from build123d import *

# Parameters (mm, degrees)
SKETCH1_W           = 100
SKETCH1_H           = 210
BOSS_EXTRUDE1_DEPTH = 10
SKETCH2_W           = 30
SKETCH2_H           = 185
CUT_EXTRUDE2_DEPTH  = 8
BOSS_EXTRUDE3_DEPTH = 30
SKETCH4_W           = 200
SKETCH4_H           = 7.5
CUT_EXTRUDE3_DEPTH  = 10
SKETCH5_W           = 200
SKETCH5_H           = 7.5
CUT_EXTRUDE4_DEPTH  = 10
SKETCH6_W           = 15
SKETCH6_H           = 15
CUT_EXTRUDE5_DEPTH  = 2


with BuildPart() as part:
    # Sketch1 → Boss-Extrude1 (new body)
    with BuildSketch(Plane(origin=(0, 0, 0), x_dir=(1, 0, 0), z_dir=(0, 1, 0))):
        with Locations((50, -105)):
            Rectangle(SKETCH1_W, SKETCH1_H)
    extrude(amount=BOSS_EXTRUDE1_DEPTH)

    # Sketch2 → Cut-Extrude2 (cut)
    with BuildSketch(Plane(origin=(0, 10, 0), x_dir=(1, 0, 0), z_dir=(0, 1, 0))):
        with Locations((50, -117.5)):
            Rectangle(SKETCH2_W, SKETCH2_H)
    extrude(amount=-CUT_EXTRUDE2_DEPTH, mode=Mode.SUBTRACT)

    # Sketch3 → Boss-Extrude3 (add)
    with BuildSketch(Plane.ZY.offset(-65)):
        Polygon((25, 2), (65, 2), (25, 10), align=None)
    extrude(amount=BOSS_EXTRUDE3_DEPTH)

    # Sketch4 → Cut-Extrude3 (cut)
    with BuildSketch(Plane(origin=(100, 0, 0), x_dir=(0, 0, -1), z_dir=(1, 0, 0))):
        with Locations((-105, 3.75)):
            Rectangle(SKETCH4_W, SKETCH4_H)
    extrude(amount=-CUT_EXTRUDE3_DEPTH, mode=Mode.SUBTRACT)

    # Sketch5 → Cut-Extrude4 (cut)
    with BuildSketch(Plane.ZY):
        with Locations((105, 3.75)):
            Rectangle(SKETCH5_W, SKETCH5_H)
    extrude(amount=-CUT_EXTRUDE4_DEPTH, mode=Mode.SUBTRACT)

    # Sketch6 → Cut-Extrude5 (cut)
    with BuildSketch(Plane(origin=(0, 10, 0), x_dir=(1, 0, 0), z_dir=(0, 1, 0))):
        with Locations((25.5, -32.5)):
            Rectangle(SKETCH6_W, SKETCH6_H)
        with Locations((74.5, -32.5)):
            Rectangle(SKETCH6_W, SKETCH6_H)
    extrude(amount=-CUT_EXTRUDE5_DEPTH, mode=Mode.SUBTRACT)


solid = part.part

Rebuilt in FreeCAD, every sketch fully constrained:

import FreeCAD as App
import Part
import Sketcher

doc = App.newDocument("Part")
params = doc.addObject("Spreadsheet::Sheet", "Params")
for row, (alias, value) in enumerate([
    ("sketch1_width", "100 mm"),
    ("sketch1_height", "210 mm"),
    ("pad1_length", "10 mm"),
    ("sketch2_width", "30 mm"),
    ("sketch2_height", "185 mm"),
    ("pocket1_length", "8 mm"),
    ("sketch3_width", "8 mm"),
    ("sketch3_height", "40 mm"),
    ("pad2_length", "30 mm"),
    ("sketch4_height", "200 mm"),
    ("sketch4_width", "7.5 mm"),
    ("pocket2_length", "10 mm"),
    ("sketch5_height", "200 mm"),
    ("sketch5_width", "7.5 mm"),
    ("pocket3_length", "10 mm"),
    ("sketch6_width", "15 mm"),
    ("pocket4_length", "2 mm"),
], start=1):
    params.set(f"A{row}", alias)
    params.set(f"B{row}", "=" + value)
    params.setAlias(f"B{row}", alias)

body = doc.addObject("PartDesign::Body", "Body")

sketch1 = body.newObject("Sketcher::SketchObject", "Sketch")
sketch1.AttachmentSupport = (doc.getObject("XZ_Plane"), [""])
sketch1.MapMode = "FlatFace"
sketch1.addGeometry([
    Part.LineSegment(App.Vector(0, 0, 0), App.Vector(0, 210, 0)),
    Part.LineSegment(App.Vector(0, 210, 0), App.Vector(100, 210, 0)),
    Part.LineSegment(App.Vector(100, 210, 0), App.Vector(100, 0, 0)),
    Part.LineSegment(App.Vector(100, 0, 0), App.Vector(0, 0, 0)),
], False)
sketch1.addConstraint([
    Sketcher.Constraint("Coincident", 0, 2, 1, 1),
    Sketcher.Constraint("Coincident", 1, 2, 2, 1),
    Sketcher.Constraint("Coincident", 2, 2, 3, 1),
    Sketcher.Constraint("Coincident", 3, 2, 0, 1),
    Sketcher.Constraint("Vertical", 0),
    Sketcher.Constraint("Horizontal", 1),
    Sketcher.Constraint("Vertical", 2),
    Sketcher.Constraint("Horizontal", 3),
    Sketcher.Constraint("Coincident", 3, 2, -1, 1),
    Sketcher.Constraint("DistanceX", 1, 1, 1, 2, 100.0),
    Sketcher.Constraint("DistanceY", 0, 1, 0, 2, 210.0),
])
sketch1.setExpression("Constraints[9]", "Params.sketch1_width")
sketch1.setExpression("Constraints[10]", "Params.sketch1_height")
pad1 = body.newObject("PartDesign::Pad", "Pad")
pad1.Profile = sketch1
pad1.setExpression("Length", "Params.pad1_length")
pad1.Reversed = True

sketch2 = body.newObject("Sketcher::SketchObject", "Sketch001")
sketch2.AttachmentSupport = (doc.getObject("XZ_Plane"), [""])
sketch2.MapMode = "FlatFace"
sketch2.AttachmentOffset = App.Placement(App.Vector(0, 0, -10), App.Rotation())
sketch2.addGeometry([
    Part.LineSegment(App.Vector(35, 25, 0), App.Vector(35, 210, 0)),
    Part.LineSegment(App.Vector(35, 210, 0), App.Vector(65, 210, 0)),
    Part.LineSegment(App.Vector(65, 210, 0), App.Vector(65, 25, 0)),
    Part.LineSegment(App.Vector(65, 25, 0), App.Vector(35, 25, 0)),
], False)
sketch2.addConstraint([
    Sketcher.Constraint("Coincident", 0, 2, 1, 1),
    Sketcher.Constraint("Coincident", 1, 2, 2, 1),
    Sketcher.Constraint("Coincident", 2, 2, 3, 1),
    Sketcher.Constraint("Coincident", 3, 2, 0, 1),
    Sketcher.Constraint("Vertical", 0),
    Sketcher.Constraint("Horizontal", 1),
    Sketcher.Constraint("Vertical", 2),
    Sketcher.Constraint("Horizontal", 3),
    Sketcher.Constraint("DistanceX", 1, 1, 1, 2, 30.0),
    Sketcher.Constraint("DistanceY", 0, 1, 0, 2, 185.0),
    Sketcher.Constraint("DistanceX", -1, 1, 0, 2, 35.0),
    Sketcher.Constraint("DistanceY", -1, 1, 0, 2, 210.0),
])
sketch2.setExpression("Constraints[8]", "Params.sketch2_width")
sketch2.setExpression("Constraints[9]", "Params.sketch2_height")
pocket1 = body.newObject("PartDesign::Pocket", "Pocket")
pocket1.Profile = sketch2
pocket1.setExpression("Length", "Params.pocket1_length")
pocket1.Reversed = True

sketch3 = body.newObject("Sketcher::SketchObject", "Sketch002")
sketch3.AttachmentSupport = (doc.getObject("YZ_Plane"), [""])
sketch3.MapMode = "FlatFace"
sketch3.AttachmentOffset = App.Placement(App.Vector(0, 0, 65), App.Rotation())
sketch3.addGeometry([
    Part.LineSegment(App.Vector(2, 25, 0), App.Vector(2, 65, 0)),
    Part.LineSegment(App.Vector(2, 65, 0), App.Vector(10, 25, 0)),
    Part.LineSegment(App.Vector(10, 25, 0), App.Vector(2, 25, 0)),
], False)
sketch3.addConstraint([
    Sketcher.Constraint("Coincident", 0, 2, 1, 1),
    Sketcher.Constraint("Coincident", 1, 2, 2, 1),
    Sketcher.Constraint("Coincident", 2, 2, 0, 1),
    Sketcher.Constraint("Vertical", 0),
    Sketcher.Constraint("Horizontal", 2),
    Sketcher.Constraint("DistanceX", 2, 2, 2, 1, 8.0),
    Sketcher.Constraint("DistanceY", 0, 1, 0, 2, 40.0),
    Sketcher.Constraint("DistanceX", -1, 1, 0, 2, 2.0),
    Sketcher.Constraint("DistanceY", -1, 1, 0, 2, 65.0),
])
sketch3.setExpression("Constraints[5]", "Params.sketch3_width")
sketch3.setExpression("Constraints[6]", "Params.sketch3_height")
pad2 = body.newObject("PartDesign::Pad", "Pad001")
pad2.Profile = sketch3
pad2.setExpression("Length", "Params.pad2_length")
pad2.Reversed = True

sketch4 = body.newObject("Sketcher::SketchObject", "Sketch003")
sketch4.AttachmentSupport = (doc.getObject("YZ_Plane"), [""])
sketch4.MapMode = "FlatFace"
sketch4.AttachmentOffset = App.Placement(App.Vector(0, 0, 100), App.Rotation())
sketch4.addGeometry([
    Part.LineSegment(App.Vector(8, 205, 0), App.Vector(0, 205, 0)),
    Part.LineSegment(App.Vector(0, 205, 0), App.Vector(0, 5, 0)),
    Part.LineSegment(App.Vector(0, 5, 0), App.Vector(8, 5, 0)),
    Part.LineSegment(App.Vector(8, 5, 0), App.Vector(8, 205, 0)),
], False)
sketch4.addConstraint([
    Sketcher.Constraint("Coincident", 0, 2, 1, 1),
    Sketcher.Constraint("Coincident", 1, 2, 2, 1),
    Sketcher.Constraint("Coincident", 2, 2, 3, 1),
    Sketcher.Constraint("Coincident", 3, 2, 0, 1),
    Sketcher.Constraint("Horizontal", 0),
    Sketcher.Constraint("Vertical", 1),
    Sketcher.Constraint("Horizontal", 2),
    Sketcher.Constraint("Vertical", 3),
    Sketcher.Constraint("PointOnObject", 0, 2, -2),
    Sketcher.Constraint("DistanceY", 1, 2, 1, 1, 200.0),
    Sketcher.Constraint("DistanceX", 0, 2, 0, 1, 7.5),
    Sketcher.Constraint("DistanceY", -1, 1, 0, 2, 205.0),
])
sketch4.setExpression("Constraints[9]", "Params.sketch4_height")
sketch4.setExpression("Constraints[10]", "Params.sketch4_width")
pocket2 = body.newObject("PartDesign::Pocket", "Pocket001")
pocket2.Profile = sketch4
pocket2.setExpression("Length", "Params.pocket2_length")

sketch5 = body.newObject("Sketcher::SketchObject", "Sketch004")
sketch5.AttachmentSupport = (doc.getObject("YZ_Plane"), [""])
sketch5.MapMode = "FlatFace"
sketch5.addGeometry([
    Part.LineSegment(App.Vector(8, 5, 0), App.Vector(0, 5, 0)),
    Part.LineSegment(App.Vector(0, 5, 0), App.Vector(0, 205, 0)),
    Part.LineSegment(App.Vector(0, 205, 0), App.Vector(8, 205, 0)),
    Part.LineSegment(App.Vector(8, 205, 0), App.Vector(8, 5, 0)),
], False)
sketch5.addConstraint([
    Sketcher.Constraint("Coincident", 0, 2, 1, 1),
    Sketcher.Constraint("Coincident", 1, 2, 2, 1),
    Sketcher.Constraint("Coincident", 2, 2, 3, 1),
    Sketcher.Constraint("Coincident", 3, 2, 0, 1),
    Sketcher.Constraint("Horizontal", 0),
    Sketcher.Constraint("Vertical", 1),
    Sketcher.Constraint("Horizontal", 2),
    Sketcher.Constraint("Vertical", 3),
    Sketcher.Constraint("PointOnObject", 0, 2, -2),
    Sketcher.Constraint("DistanceY", 1, 1, 1, 2, 200.0),
    Sketcher.Constraint("DistanceX", 0, 2, 0, 1, 7.5),
    Sketcher.Constraint("DistanceY", -1, 1, 0, 2, 5.0),
])
sketch5.setExpression("Constraints[9]", "Params.sketch5_height")
sketch5.setExpression("Constraints[10]", "Params.sketch5_width")
pocket3 = body.newObject("PartDesign::Pocket", "Pocket002")
pocket3.Profile = sketch5
pocket3.setExpression("Length", "Params.pocket3_length")
pocket3.Reversed = True

sketch6 = body.newObject("Sketcher::SketchObject", "Sketch005")
sketch6.AttachmentSupport = (doc.getObject("XZ_Plane"), [""])
sketch6.MapMode = "FlatFace"
sketch6.AttachmentOffset = App.Placement(App.Vector(0, 0, -10), App.Rotation())
sketch6.addGeometry([
    Part.LineSegment(App.Vector(18, 25, 0), App.Vector(18, 40, 0)),
    Part.LineSegment(App.Vector(18, 40, 0), App.Vector(33, 40, 0)),
    Part.LineSegment(App.Vector(33, 40, 0), App.Vector(33, 25, 0)),
    Part.LineSegment(App.Vector(33, 25, 0), App.Vector(18, 25, 0)),
    Part.LineSegment(App.Vector(67, 25, 0), App.Vector(67, 40, 0)),
    Part.LineSegment(App.Vector(67, 40, 0), App.Vector(82, 40, 0)),
    Part.LineSegment(App.Vector(82, 40, 0), App.Vector(82, 25, 0)),
    Part.LineSegment(App.Vector(82, 25, 0), App.Vector(67, 25, 0)),
], False)
sketch6.addConstraint([
    Sketcher.Constraint("Coincident", 0, 2, 1, 1),
    Sketcher.Constraint("Coincident", 1, 2, 2, 1),
    Sketcher.Constraint("Coincident", 2, 2, 3, 1),
    Sketcher.Constraint("Coincident", 3, 2, 0, 1),
    Sketcher.Constraint("Coincident", 4, 2, 5, 1),
    Sketcher.Constraint("Coincident", 5, 2, 6, 1),
    Sketcher.Constraint("Coincident", 6, 2, 7, 1),
    Sketcher.Constraint("Coincident", 7, 2, 4, 1),
    Sketcher.Constraint("Vertical", 0),
    Sketcher.Constraint("Horizontal", 1),
    Sketcher.Constraint("Vertical", 2),
    Sketcher.Constraint("Horizontal", 3),
    Sketcher.Constraint("Vertical", 4),
    Sketcher.Constraint("Horizontal", 5),
    Sketcher.Constraint("Vertical", 6),
    Sketcher.Constraint("Horizontal", 7),
    Sketcher.Constraint("Horizontal", 1, 2, 4, 2),
    Sketcher.Constraint("Horizontal", 3, 2, 6, 2),
    Sketcher.Constraint("Equal", 3, 5),
    Sketcher.Constraint("Equal", 7, 0),
    Sketcher.Constraint("DistanceX", 1, 1, 1, 2, 15.0),
    Sketcher.Constraint("DistanceX", -1, 1, 0, 2, 18.0),
    Sketcher.Constraint("DistanceY", -1, 1, 0, 2, 40.0),
    Sketcher.Constraint("DistanceX", -1, 1, 4, 2, 67.0),
])
sketch6.setExpression("Constraints[20]", "Params.sketch6_width")
pocket4 = body.newObject("PartDesign::Pocket", "Pocket003")
pocket4.Profile = sketch6
pocket4.setExpression("Length", "Params.pocket4_length")
pocket4.Reversed = True

doc.recompute()
